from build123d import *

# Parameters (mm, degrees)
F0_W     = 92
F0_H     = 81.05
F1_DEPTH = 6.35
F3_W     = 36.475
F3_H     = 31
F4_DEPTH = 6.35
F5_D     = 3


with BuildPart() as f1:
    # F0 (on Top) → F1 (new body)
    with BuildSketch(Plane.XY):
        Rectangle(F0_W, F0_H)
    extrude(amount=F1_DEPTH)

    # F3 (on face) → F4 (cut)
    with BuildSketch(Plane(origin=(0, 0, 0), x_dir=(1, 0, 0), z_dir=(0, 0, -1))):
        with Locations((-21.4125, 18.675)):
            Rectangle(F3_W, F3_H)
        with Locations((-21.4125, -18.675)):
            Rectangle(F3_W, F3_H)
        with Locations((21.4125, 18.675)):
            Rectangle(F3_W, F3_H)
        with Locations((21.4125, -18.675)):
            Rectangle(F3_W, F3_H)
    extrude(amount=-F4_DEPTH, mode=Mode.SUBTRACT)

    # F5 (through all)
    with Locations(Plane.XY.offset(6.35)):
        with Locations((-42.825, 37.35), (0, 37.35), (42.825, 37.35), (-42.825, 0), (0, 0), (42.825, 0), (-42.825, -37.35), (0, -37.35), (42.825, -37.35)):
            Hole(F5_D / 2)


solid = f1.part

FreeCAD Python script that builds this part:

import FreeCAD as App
import Part
import Sketcher
from FreeCAD import Vector

doc = App.newDocument("Part")
body = doc.addObject("PartDesign::Body", "Body")

sketch1 = body.newObject("Sketcher::SketchObject", "Sketch")
sketch1.AttachmentSupport = (doc.getObject("XY_Plane"), [""])
sketch1.MapMode = "FlatFace"
sketch1.addGeometry(Part.LineSegment(Vector(-46, 40.525, 0), Vector(-46, -40.525, 0)), False)
sketch1.addGeometry(Part.LineSegment(Vector(-46, -40.525, 0), Vector(46, -40.525, 0)), False)
sketch1.addGeometry(Part.LineSegment(Vector(46, -40.525, 0), Vector(46, 40.525, 0)), False)
sketch1.addGeometry(Part.LineSegment(Vector(46, 40.525, 0), Vector(-46, 40.525, 0)), False)
sketch1.addConstraint(Sketcher.Constraint("Coincident", 0, 2, 1, 1))
sketch1.addConstraint(Sketcher.Constraint("Coincident", 1, 2, 2, 1))
sketch1.addConstraint(Sketcher.Constraint("Coincident", 2, 2, 3, 1))
sketch1.addConstraint(Sketcher.Constraint("Coincident", 3, 2, 0, 1))
sketch1.addConstraint(Sketcher.Constraint("Vertical", 0))
sketch1.addConstraint(Sketcher.Constraint("Horizontal", 1))
sketch1.addConstraint(Sketcher.Constraint("Vertical", 2))
sketch1.addConstraint(Sketcher.Constraint("Horizontal", 3))
sketch1.addConstraint(Sketcher.Constraint("Symmetric", 0, 2, 2, 2, -1, 1))
sketch1.addConstraint(Sketcher.Constraint("DistanceX", 1, 1, 1, 2, 92.0))
sketch1.addConstraint(Sketcher.Constraint("DistanceY", 0, 2, 0, 1, 81.05))
pad1 = body.newObject("PartDesign::Pad", "Pad")
pad1.Profile = sketch1
pad1.Length = 6.35

sketch2 = body.newObject("Sketcher::SketchObject", "Sketch001")
sketch2.AttachmentSupport = (doc.getObject("XY_Plane"), [""])
sketch2.MapMode = "FlatFace"
sketch2.addGeometry(Part.LineSegment(Vector(-39.65, -34.175, 0), Vector(-39.65, -3.175, 0)), False)
sketch2.addGeometry(Part.LineSegment(Vector(-39.65, -3.175, 0), Vector(-3.175, -3.175, 0)), False)
sketch2.addGeometry(Part.LineSegment(Vector(-3.175, -3.175, 0), Vector(-3.175, -34.175, 0)), False)
sketch2.addGeometry(Part.LineSegment(Vector(-3.175, -34.175, 0), Vector(-39.65, -34.175, 0)), False)
sketch2.addGeometry(Part.LineSegment(Vector(-39.65, 3.175, 0), Vector(-39.65, 34.175, 0)), False)
sketch2.addGeometry(Part.LineSegment(Vector(-39.65, 34.175, 0), Vector(-3.175, 34.175, 0)), False)
sketch2.addGeometry(Part.LineSegment(Vector(-3.175, 34.175, 0), Vector(-3.175, 3.175, 0)), False)
sketch2.addGeometry(Part.LineSegment(Vector(-3.175, 3.175, 0), Vector(-39.65, 3.175, 0)), False)
sketch2.addGeometry(Part.LineSegment(Vector(3.175, -34.175, 0), Vector(3.175, -3.175, 0)), False)
sketch2.addGeometry(Part.LineSegment(Vector(3.175, -3.175, 0), Vector(39.65, -3.175, 0)), False)
sketch2.addGeometry(Part.LineSegment(Vector(39.65, -3.175, 0), Vector(39.65, -34.175, 0)), False)
sketch2.addGeometry(Part.LineSegment(Vector(39.65, -34.175, 0), Vector(3.175, -34.175, 0)), False)
sketch2.addGeometry(Part.LineSegment(Vector(3.175, 3.175, 0), Vector(3.175, 34.175, 0)), False)
sketch2.addGeometry(Part.LineSegment(Vector(3.175, 34.175, 0), Vector(39.65, 34.175, 0)), False)
sketch2.addGeometry(Part.LineSegment(Vector(39.65, 34.175, 0), Vector(39.65, 3.175, 0)), False)
sketch2.addGeometry(Part.LineSegment(Vector(39.65, 3.175, 0), Vector(3.175, 3.175, 0)), False)
sketch2.addConstraint(Sketcher.Constraint("Coincident", 0, 2, 1, 1))
sketch2.addConstraint(Sketcher.Constraint("Coincident", 1, 2, 2, 1))
sketch2.addConstraint(Sketcher.Constraint("Coincident", 2, 2, 3, 1))
sketch2.addConstraint(Sketcher.Constraint("Coincident", 3, 2, 0, 1))
sketch2.addConstraint(Sketcher.Constraint("Coincident", 4, 2, 5, 1))
sketch2.addConstraint(Sketcher.Constraint("Coincident", 5, 2, 6, 1))
sketch2.addConstraint(Sketcher.Constraint("Coincident", 6, 2, 7, 1))
sketch2.addConstraint(Sketcher.Constraint("Coincident", 7, 2, 4, 1))
sketch2.addConstraint(Sketcher.Constraint("Coincident", 8, 2, 9, 1))
sketch2.addConstraint(Sketcher.Constraint("Coincident", 9, 2, 10, 1))
sketch2.addConstraint(Sketcher.Constraint("Coincident", 10, 2, 11, 1))
sketch2.addConstraint(Sketcher.Constraint("Coincident", 11, 2, 8, 1))
sketch2.addConstraint(Sketcher.Constraint("Coincident", 12, 2, 13, 1))
sketch2.addConstraint(Sketcher.Constraint("Coincident", 13, 2, 14, 1))
sketch2.addConstraint(Sketcher.Constraint("Coincident", 14, 2, 15, 1))
sketch2.addConstraint(Sketcher.Constraint("Coincident", 15, 2, 12, 1))
sketch2.addConstraint(Sketcher.Constraint("Vertical", 0))
sketch2.addConstraint(Sketcher.Constraint("Horizontal", 1))
sketch2.addConstraint(Sketcher.Constraint("Vertical", 2))
sketch2.addConstraint(Sketcher.Constraint("Horizontal", 3))
sketch2.addConstraint(Sketcher.Constraint("Vertical", 4))
sketch2.addConstraint(Sketcher.Constraint("Horizontal", 5))
sketch2.addConstraint(Sketcher.Constraint("Vertical", 6))
sketch2.addConstraint(Sketcher.Constraint("Horizontal", 7))
sketch2.addConstraint(Sketcher.Constraint("Vertical", 8))
sketch2.addConstraint(Sketcher.Constraint("Horizontal", 9))
sketch2.addConstraint(Sketcher.Constraint("Vertical", 10))
sketch2.addConstraint(Sketcher.Constraint("Horizontal", 11))
sketch2.addConstraint(Sketcher.Constraint("Vertical", 12))
sketch2.addConstraint(Sketcher.Constraint("Horizontal", 13))
sketch2.addConstraint(Sketcher.Constraint("Vertical", 14))
sketch2.addConstraint(Sketcher.Constraint("Horizontal", 15))
sketch2.addConstraint(Sketcher.Constraint("Symmetric", 6, 2, 8, 2, -1, 1))
sketch2.addConstraint(Sketcher.Constraint("Symmetric", 4, 2, 10, 2, -1, 1))
sketch2.addConstraint(Sketcher.Constraint("Symmetric", 2, 2, 12, 2, -1, 1))
sketch2.addConstraint(Sketcher.Constraint("Symmetric", 0, 2, 14, 2, -1, 1))
sketch2.addConstraint(Sketcher.Constraint("Symmetric", 1, 2, 8, 2, -2))
sketch2.addConstraint(Sketcher.Constraint("Symmetric", 3, 2, 10, 2, -2))
sketch2.addConstraint(Sketcher.Constraint("DistanceY", 0, 1, 0, 2, 31.0))
sketch2.addConstraint(Sketcher.Constraint("DistanceX", 1, 1, 1, 2, 36.475))
sketch2.addConstraint(Sketcher.Constraint("DistanceX", 0, 2, -1, 1, 39.65))
sketch2.addConstraint(Sketcher.Constraint("DistanceY", 0, 2, 4, 2, 37.35))
pocket1 = body.newObject("PartDesign::Pocket", "Pocket")
pocket1.Profile = sketch2
pocket1.Length = 6.35
pocket1.Reversed = True

sketch3 = body.newObject("Sketcher::SketchObject", "Sketch002")
sketch3.AttachmentSupport = (doc.getObject("XY_Plane"), [""])
sketch3.MapMode = "FlatFace"
sketch3.AttachmentOffset = App.Placement(Vector(0, 0, 6.35), App.Rotation())
sketch3.addGeometry(Part.Circle(Vector(-42.825, 37.35, 0), Vector(0, 0, 1), 1.5), False)
sketch3.addGeometry(Part.Circle(Vector(0, 37.35, 0), Vector(0, 0, 1), 1.5), False)
sketch3.addGeometry(Part.Circle(Vector(42.825, 37.35, 0), Vector(0, 0, 1), 1.5), False)
sketch3.addGeometry(Part.Circle(Vector(-42.825, 0, 0), Vector(0, 0, 1), 1.5), False)
sketch3.addGeometry(Part.Circle(Vector(0, 0, 0), Vector(0, 0, 1), 1.5), False)
sketch3.addGeometry(Part.Circle(Vector(42.825, 0, 0), Vector(0, 0, 1), 1.5), False)
sketch3.addGeometry(Part.Circle(Vector(-42.825, -37.35, 0), Vector(0, 0, 1), 1.5), False)
sketch3.addGeometry(Part.Circle(Vector(0, -37.35, 0), Vector(0, 0, 1), 1.5), False)
sketch3.addGeometry(Part.Circle(Vector(42.825, -37.35, 0), Vector(0, 0, 1), 1.5), False)
sketch3.addConstraint(Sketcher.Constraint("Coincident", 4, 3, -1, 1))
sketch3.addConstraint(Sketcher.Constraint("Equal", 0, 1))
sketch3.addConstraint(Sketcher.Constraint("Equal", 1, 2))
sketch3.addConstraint(Sketcher.Constraint("Equal", 2, 3))
sketch3.addConstraint(Sketcher.Constraint("Equal", 3, 4))
sketch3.addConstraint(Sketcher.Constraint("Equal", 4, 5))
sketch3.addConstraint(Sketcher.Constraint("Equal", 5, 6))
sketch3.addConstraint(Sketcher.Constraint("Equal", 6, 7))
sketch3.addConstraint(Sketcher.Constraint("Equal", 7, 8))
sketch3.addConstraint(Sketcher.Constraint("Symmetric", 3, 3, 5, 3, -1, 1))
sketch3.addConstraint(Sketcher.Constraint("Symmetric", 2, 3, 6, 3, -1, 1))
sketch3.addConstraint(Sketcher.Constraint("Symmetric", 1, 3, 7, 3, -1, 1))
sketch3.addConstraint(Sketcher.Constraint("Symmetric", 0, 3, 8, 3, -1, 1))
sketch3.addConstraint(Sketcher.Constraint("Symmetric", 0, 3, 2, 3, -2))
sketch3.addConstraint(Sketcher.Constraint("PointOnObject", 1, 3, -2))
sketch3.addConstraint(Sketcher.Constraint("PointOnObject", 3, 3, -1))
sketch3.addConstraint(Sketcher.Constraint("Horizontal", 0, 3, 1, 3))
sketch3.addConstraint(Sketcher.Constraint("Vertical", 0, 3, 3, 3))
sketch3.addConstraint(Sketcher.Constraint("Diameter", 0, 3.0))
sketch3.addConstraint(Sketcher.Constraint("DistanceY", 6, 3, 0, 3, 74.7))
sketch3.addConstraint(Sketcher.Constraint("DistanceX", 0, 3, 2, 3, 85.65))
doc.recompute()
hole = body.newObject("PartDesign::Hole", "Hole")
hole.Profile = sketch3
hole.ThreadType = "None"
hole.Diameter = 3
hole.DepthType = "ThroughAll"

doc.recompute()
